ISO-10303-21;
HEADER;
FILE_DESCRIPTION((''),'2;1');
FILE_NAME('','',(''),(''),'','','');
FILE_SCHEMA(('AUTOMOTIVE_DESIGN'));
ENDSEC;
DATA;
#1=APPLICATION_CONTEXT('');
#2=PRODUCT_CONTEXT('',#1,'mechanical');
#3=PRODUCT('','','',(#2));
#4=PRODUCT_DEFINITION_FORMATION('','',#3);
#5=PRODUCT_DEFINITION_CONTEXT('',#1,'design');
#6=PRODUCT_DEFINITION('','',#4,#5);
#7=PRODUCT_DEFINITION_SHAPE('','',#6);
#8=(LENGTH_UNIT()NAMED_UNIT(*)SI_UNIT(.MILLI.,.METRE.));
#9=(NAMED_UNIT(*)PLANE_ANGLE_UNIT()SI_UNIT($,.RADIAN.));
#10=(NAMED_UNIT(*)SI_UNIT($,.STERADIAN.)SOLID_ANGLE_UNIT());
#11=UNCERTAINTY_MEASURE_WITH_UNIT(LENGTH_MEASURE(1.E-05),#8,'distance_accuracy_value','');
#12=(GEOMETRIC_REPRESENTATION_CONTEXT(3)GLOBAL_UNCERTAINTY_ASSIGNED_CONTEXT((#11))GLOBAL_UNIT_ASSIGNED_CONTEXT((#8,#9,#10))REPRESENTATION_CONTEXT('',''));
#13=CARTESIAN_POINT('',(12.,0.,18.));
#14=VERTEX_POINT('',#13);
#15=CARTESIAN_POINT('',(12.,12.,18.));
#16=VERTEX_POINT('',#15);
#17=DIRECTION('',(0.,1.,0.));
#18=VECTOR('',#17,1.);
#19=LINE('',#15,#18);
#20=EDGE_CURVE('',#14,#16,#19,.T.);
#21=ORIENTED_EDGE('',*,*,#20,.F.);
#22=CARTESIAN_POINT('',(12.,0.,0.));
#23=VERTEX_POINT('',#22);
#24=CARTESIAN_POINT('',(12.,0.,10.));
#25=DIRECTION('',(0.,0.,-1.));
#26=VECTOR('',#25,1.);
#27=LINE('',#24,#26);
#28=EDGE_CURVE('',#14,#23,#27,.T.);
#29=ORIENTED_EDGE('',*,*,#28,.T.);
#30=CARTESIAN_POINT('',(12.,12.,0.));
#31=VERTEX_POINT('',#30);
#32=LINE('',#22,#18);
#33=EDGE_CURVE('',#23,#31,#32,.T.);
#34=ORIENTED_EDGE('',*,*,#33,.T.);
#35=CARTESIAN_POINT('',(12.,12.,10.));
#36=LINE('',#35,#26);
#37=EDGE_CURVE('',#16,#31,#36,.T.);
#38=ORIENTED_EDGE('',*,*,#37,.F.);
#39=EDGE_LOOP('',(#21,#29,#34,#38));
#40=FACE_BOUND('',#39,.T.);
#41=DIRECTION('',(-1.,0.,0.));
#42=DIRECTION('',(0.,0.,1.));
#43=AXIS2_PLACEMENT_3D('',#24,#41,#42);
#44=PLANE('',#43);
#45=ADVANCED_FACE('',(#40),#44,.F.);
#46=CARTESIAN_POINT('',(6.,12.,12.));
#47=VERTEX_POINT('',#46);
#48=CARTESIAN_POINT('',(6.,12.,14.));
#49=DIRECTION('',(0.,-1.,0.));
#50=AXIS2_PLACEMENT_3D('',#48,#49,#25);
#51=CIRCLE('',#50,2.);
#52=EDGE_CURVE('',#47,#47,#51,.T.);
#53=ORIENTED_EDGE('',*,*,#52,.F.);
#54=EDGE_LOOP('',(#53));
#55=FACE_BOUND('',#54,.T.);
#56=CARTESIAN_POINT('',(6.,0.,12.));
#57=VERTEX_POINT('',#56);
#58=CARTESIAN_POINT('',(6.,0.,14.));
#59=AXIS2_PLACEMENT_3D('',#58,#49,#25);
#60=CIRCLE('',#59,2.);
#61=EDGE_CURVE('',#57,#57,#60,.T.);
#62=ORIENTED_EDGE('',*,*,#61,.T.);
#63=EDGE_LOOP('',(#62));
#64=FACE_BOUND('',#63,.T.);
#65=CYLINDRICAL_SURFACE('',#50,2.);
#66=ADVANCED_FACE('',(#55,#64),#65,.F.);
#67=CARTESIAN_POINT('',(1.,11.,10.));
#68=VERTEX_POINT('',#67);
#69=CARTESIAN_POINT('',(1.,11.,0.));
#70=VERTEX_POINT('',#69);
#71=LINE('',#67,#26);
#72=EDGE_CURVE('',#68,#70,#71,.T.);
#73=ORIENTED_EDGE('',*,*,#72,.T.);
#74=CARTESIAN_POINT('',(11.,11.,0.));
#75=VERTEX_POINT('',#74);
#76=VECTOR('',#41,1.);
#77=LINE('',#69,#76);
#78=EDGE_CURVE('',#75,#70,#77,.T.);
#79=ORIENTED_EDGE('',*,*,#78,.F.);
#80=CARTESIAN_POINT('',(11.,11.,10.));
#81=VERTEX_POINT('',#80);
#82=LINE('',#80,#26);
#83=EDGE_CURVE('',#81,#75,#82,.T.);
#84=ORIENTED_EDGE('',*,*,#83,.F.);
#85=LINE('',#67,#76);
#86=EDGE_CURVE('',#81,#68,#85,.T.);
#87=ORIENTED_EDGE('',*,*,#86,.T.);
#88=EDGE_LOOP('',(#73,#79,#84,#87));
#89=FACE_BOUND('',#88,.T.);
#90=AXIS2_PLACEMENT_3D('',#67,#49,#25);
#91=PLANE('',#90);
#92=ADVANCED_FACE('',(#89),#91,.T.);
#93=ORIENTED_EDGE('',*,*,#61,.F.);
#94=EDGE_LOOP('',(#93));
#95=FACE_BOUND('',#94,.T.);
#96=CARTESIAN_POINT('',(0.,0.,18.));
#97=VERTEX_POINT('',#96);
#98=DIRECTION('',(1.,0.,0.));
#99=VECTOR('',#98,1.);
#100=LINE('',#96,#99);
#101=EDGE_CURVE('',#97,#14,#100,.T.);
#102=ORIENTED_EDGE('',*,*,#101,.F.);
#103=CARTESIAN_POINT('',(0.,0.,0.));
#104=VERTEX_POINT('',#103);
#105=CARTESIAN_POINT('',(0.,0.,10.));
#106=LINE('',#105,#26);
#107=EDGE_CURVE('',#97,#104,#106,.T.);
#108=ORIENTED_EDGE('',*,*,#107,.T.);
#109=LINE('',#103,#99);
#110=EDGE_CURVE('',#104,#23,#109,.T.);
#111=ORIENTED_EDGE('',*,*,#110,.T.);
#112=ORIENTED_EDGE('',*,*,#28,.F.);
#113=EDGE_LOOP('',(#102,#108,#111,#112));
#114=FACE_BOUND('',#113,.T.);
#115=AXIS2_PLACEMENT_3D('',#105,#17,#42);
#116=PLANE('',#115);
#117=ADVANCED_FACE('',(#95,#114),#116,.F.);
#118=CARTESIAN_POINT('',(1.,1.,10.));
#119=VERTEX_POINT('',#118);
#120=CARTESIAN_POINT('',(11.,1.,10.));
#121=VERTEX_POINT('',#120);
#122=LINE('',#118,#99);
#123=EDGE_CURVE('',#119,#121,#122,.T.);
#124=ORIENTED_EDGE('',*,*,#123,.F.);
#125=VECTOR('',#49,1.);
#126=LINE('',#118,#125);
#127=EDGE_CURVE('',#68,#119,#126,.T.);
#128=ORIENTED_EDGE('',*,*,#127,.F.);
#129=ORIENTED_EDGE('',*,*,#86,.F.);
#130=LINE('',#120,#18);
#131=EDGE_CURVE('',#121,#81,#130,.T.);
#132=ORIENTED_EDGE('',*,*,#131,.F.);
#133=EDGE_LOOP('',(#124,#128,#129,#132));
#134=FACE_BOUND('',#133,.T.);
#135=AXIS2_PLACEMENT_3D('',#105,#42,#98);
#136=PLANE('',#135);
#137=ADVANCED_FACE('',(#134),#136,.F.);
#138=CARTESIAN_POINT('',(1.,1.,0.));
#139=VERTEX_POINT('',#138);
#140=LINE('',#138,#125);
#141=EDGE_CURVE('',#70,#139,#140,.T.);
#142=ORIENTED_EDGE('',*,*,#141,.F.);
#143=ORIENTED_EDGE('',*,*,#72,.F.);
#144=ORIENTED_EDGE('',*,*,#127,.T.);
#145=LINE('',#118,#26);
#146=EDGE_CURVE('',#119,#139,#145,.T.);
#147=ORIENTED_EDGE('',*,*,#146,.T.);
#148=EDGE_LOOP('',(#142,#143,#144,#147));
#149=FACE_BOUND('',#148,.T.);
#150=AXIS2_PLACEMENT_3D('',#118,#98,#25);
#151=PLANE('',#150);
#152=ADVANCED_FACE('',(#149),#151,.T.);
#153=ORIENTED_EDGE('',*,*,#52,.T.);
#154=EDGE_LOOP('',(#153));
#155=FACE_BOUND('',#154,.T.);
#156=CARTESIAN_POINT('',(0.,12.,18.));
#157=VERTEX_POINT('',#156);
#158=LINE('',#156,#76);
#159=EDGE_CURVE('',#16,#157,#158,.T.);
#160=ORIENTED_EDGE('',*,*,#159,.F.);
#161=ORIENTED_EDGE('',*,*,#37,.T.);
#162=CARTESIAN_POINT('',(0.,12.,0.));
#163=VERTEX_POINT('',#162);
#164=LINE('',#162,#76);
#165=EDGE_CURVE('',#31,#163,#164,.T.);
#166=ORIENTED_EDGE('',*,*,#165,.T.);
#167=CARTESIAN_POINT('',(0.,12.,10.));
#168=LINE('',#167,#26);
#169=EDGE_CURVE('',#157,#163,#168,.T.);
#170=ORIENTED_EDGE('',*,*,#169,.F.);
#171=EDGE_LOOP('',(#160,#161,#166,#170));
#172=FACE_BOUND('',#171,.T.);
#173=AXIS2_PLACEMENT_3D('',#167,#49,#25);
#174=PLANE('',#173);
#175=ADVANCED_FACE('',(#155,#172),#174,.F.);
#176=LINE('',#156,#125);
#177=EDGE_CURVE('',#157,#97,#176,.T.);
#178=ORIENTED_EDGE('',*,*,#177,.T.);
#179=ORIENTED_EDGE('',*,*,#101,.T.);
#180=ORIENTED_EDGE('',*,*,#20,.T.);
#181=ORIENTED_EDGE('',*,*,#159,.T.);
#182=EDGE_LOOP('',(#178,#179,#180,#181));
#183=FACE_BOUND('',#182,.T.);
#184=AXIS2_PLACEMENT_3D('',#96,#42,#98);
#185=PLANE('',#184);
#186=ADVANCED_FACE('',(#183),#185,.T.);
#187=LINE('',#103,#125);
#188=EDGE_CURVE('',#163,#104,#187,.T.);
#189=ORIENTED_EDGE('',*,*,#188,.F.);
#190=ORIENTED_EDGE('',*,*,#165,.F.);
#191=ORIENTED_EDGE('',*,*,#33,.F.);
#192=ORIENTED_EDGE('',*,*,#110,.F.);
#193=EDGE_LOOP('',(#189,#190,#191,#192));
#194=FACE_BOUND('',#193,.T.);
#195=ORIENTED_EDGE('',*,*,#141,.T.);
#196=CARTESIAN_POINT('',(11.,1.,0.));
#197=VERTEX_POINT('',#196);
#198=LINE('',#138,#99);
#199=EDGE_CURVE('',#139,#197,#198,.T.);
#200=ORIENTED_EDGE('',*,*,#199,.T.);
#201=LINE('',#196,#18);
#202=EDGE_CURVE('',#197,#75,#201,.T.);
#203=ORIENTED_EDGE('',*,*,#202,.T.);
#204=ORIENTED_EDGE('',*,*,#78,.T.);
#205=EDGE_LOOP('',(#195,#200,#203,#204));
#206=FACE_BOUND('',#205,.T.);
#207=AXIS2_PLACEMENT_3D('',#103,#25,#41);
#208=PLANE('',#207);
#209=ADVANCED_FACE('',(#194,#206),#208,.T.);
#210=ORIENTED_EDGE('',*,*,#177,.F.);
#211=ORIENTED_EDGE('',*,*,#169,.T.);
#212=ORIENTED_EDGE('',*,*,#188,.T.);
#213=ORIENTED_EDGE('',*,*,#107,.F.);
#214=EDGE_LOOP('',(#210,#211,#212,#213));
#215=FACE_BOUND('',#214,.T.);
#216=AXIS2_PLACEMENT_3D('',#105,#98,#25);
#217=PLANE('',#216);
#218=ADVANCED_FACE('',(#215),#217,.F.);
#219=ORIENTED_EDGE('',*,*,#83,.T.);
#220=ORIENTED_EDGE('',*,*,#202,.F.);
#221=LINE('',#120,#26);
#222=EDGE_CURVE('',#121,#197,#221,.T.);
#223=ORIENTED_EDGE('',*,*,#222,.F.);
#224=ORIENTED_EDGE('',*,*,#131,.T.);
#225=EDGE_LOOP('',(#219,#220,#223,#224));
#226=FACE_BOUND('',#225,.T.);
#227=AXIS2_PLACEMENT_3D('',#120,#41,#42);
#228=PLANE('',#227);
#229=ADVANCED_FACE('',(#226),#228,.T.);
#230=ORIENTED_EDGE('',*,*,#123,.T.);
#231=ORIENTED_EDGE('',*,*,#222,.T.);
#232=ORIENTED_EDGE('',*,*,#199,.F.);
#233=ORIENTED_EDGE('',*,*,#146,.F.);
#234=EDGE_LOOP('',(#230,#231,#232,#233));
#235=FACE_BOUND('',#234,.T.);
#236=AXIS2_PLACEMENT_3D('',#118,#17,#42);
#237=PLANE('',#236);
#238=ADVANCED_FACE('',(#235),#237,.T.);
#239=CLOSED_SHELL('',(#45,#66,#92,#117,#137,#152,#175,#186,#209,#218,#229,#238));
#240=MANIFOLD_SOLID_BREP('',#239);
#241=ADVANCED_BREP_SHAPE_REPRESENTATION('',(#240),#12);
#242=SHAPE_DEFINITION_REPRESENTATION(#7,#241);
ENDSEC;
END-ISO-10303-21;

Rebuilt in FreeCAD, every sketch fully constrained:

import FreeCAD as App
import Part
import Sketcher
Q = App.Units.Quantity

doc = App.newDocument("Part")
body = doc.addObject("PartDesign::Body", "Body")

# Sketch on XY plane
sketch1 = body.newObject("Sketcher::SketchObject", "Sketch")
sketch1.AttachmentSupport = (doc.getObject("XY_Plane"), [""])
sketch1.MapMode = "FlatFace"
sketch1.addGeometry(Part.LineSegment(App.Vector(0, 12, 0), App.Vector(0, 0, 0)), False)
sketch1.addGeometry(Part.LineSegment(App.Vector(0, 0, 0), App.Vector(12, 0, 0)), False)
sketch1.addGeometry(Part.LineSegment(App.Vector(12, 0, 0), App.Vector(12, 12, 0)), False)
sketch1.addGeometry(Part.LineSegment(App.Vector(12, 12, 0), App.Vector(0, 12, 0)), False)
sketch1.addGeometry(Part.LineSegment(App.Vector(11, 1, 0), App.Vector(1, 1, 0)), False)
sketch1.addGeometry(Part.LineSegment(App.Vector(1, 1, 0), App.Vector(1, 11, 0)), False)
sketch1.addGeometry(Part.LineSegment(App.Vector(1, 11, 0), App.Vector(11, 11, 0)), False)
sketch1.addGeometry(Part.LineSegment(App.Vector(11, 11, 0), App.Vector(11, 1, 0)), False)
sketch1.addConstraint(Sketcher.Constraint("Coincident", 0, 2, 1, 1))
sketch1.addConstraint(Sketcher.Constraint("Coincident", 1, 2, 2, 1))
sketch1.addConstraint(Sketcher.Constraint("Coincident", 2, 2, 3, 1))
sketch1.addConstraint(Sketcher.Constraint("Coincident", 3, 2, 0, 1))
sketch1.addConstraint(Sketcher.Constraint("Coincident", 4, 2, 5, 1))
sketch1.addConstraint(Sketcher.Constraint("Coincident", 5, 2, 6, 1))
sketch1.addConstraint(Sketcher.Constraint("Coincident", 6, 2, 7, 1))
sketch1.addConstraint(Sketcher.Constraint("Coincident", 7, 2, 4, 1))
sketch1.addConstraint(Sketcher.Constraint("Vertical", 0))
sketch1.addConstraint(Sketcher.Constraint("Horizontal", 1))
sketch1.addConstraint(Sketcher.Constraint("Vertical", 2))
sketch1.addConstraint(Sketcher.Constraint("Horizontal", 3))
sketch1.addConstraint(Sketcher.Constraint("Horizontal", 4))
sketch1.addConstraint(Sketcher.Constraint("Vertical", 5))
sketch1.addConstraint(Sketcher.Constraint("Horizontal", 6))
sketch1.addConstraint(Sketcher.Constraint("Vertical", 7))
sketch1.addConstraint(Sketcher.Constraint("Coincident", 0, 2, -1, 1))
sketch1.addConstraint(Sketcher.Constraint("Equal", 3, 0))
sketch1.addConstraint(Sketcher.Constraint("Equal", 6, 5))
sketch1.addConstraint(Sketcher.Constraint("DistanceX", 1, 1, 1, 2, Q("12 mm")))
sketch1.addConstraint(Sketcher.Constraint("DistanceX", 4, 2, 4, 1, Q("10 mm")))
sketch1.addConstraint(Sketcher.Constraint("DistanceX", -1, 1, 4, 2, Q("1 mm")))
sketch1.addConstraint(Sketcher.Constraint("DistanceY", -1, 1, 4, 2, Q("1 mm")))
pad1 = body.newObject("PartDesign::Pad", "Pad")
pad1.Profile = sketch1
pad1.Length = 10

# Sketch on XY plane
sketch2 = body.newObject("Sketcher::SketchObject", "Sketch001")
sketch2.AttachmentSupport = (doc.getObject("XY_Plane"), [""])
sketch2.MapMode = "FlatFace"
sketch2.AttachmentOffset = App.Placement(App.Vector(0, 0, 10), App.Rotation())
sketch2.addGeometry(Part.LineSegment(App.Vector(0, 12, 0), App.Vector(0, 0, 0)), False)
sketch2.addGeometry(Part.LineSegment(App.Vector(0, 0, 0), App.Vector(12, 0, 0)), False)
sketch2.addGeometry(Part.LineSegment(App.Vector(12, 0, 0), App.Vector(12, 12, 0)), False)
sketch2.addGeometry(Part.LineSegment(App.Vector(12, 12, 0), App.Vector(0, 12, 0)), False)
sketch2.addConstraint(Sketcher.Constraint("Coincident", 0, 2, 1, 1))
sketch2.addConstraint(Sketcher.Constraint("Coincident", 1, 2, 2, 1))
sketch2.addConstraint(Sketcher.Constraint("Coincident", 2, 2, 3, 1))
sketch2.addConstraint(Sketcher.Constraint("Coincident", 3, 2, 0, 1))
sketch2.addConstraint(Sketcher.Constraint("Vertical", 0))
sketch2.addConstraint(Sketcher.Constraint("Horizontal", 1))
sketch2.addConstraint(Sketcher.Constraint("Vertical", 2))
sketch2.addConstraint(Sketcher.Constraint("Horizontal", 3))
sketch2.addConstraint(Sketcher.Constraint("Coincident", 0, 2, -1, 1))
sketch2.addConstraint(Sketcher.Constraint("Equal", 3, 0))
sketch2.addConstraint(Sketcher.Constraint("DistanceX", 1, 1, 1, 2, Q("12 mm")))
pad2 = body.newObject("PartDesign::Pad", "Pad001")
pad2.Profile = sketch2
pad2.Length = 8

# Sketch on XZ plane
sketch3 = body.newObject("Sketcher::SketchObject", "Sketch002")
sketch3.AttachmentSupport = (doc.getObject("XZ_Plane"), [""])
sketch3.MapMode = "FlatFace"
sketch3.addGeometry(Part.Circle(App.Vector(6, 14, 0), App.Vector(0, 0, 1), 2), False)
sketch3.addConstraint(Sketcher.Constraint("Diameter", 0, Q("4 mm")))
sketch3.addConstraint(Sketcher.Constraint("DistanceX", -1, 1, 0, 3, Q("6 mm")))
sketch3.addConstraint(Sketcher.Constraint("DistanceY", -1, 1, 0, 3, Q("14 mm")))
pocket1 = body.newObject("PartDesign::Pocket", "Pocket")
pocket1.Profile = sketch3
pocket1.Length = 12

doc.recompute()
